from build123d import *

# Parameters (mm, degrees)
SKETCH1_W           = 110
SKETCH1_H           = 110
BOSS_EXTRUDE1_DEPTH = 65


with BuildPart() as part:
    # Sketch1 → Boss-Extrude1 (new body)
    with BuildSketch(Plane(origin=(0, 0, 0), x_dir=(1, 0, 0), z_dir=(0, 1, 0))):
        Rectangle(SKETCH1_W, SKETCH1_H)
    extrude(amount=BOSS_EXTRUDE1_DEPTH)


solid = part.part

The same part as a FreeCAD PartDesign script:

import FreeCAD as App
import Part
import Sketcher
from FreeCAD import Vector
Q = App.Units.Quantity

doc = App.newDocument("Part")
params = doc.addObject("Spreadsheet::Sheet", "Params")
for row, (alias, value) in enumerate([
    ("sketch1_width", "110 mm"),
    ("pad1_length", "65 mm"),
], start=1):
    params.set(f"A{row}", alias)
    params.set(f"B{row}", "=" + value)
    params.setAlias(f"B{row}", alias)

body = doc.addObject("PartDesign::Body", "Body")

# Sketch on XZ plane
sketch1 = doc.addObject("Sketcher::SketchObject", "Sketch")
body.addObject(sketch1)
sketch1.AttachmentSupport = (doc.XZ_Plane, [""])
sketch1.MapMode = "FlatFace"
sketch1.addGeometry([
    Part.LineSegment(Vector(-55, -55, 0), Vector(-55, 55, 0)),
    Part.LineSegment(Vector(-55, 55, 0), Vector(55, 55, 0)),
    Part.LineSegment(Vector(55, 55, 0), Vector(55, -55, 0)),
    Part.LineSegment(Vector(55, -55, 0), Vector(-55, -55, 0)),
], False)
sketch1.addConstraint([
    Sketcher.Constraint("Coincident", 0, 2, 1, 1),
    Sketcher.Constraint("Coincident", 1, 2, 2, 1),
    Sketcher.Constraint("Coincident", 2, 2, 3, 1),
    Sketcher.Constraint("Coincident", 3, 2, 0, 1),
    Sketcher.Constraint("Vertical", 0),
    Sketcher.Constraint("Horizontal", 1),
    Sketcher.Constraint("Vertical", 2),
    Sketcher.Constraint("Horizontal", 3),
    Sketcher.Constraint("Symmetric", 0, 2, 2, 2, -1, 1),
    Sketcher.Constraint("Equal", 3, 0),
    Sketcher.Constraint("DistanceX", 1, 1, 1, 2, Q("110 mm")),
])
sketch1.setExpression("Constraints[10]", "Params.sketch1_width")
pad1 = doc.addObject("PartDesign::Pad", "Pad")
body.addObject(pad1)
pad1.Profile = sketch1
pad1.setExpression("Length", "Params.pad1_length")
pad1.Reversed = True

doc.recompute()
